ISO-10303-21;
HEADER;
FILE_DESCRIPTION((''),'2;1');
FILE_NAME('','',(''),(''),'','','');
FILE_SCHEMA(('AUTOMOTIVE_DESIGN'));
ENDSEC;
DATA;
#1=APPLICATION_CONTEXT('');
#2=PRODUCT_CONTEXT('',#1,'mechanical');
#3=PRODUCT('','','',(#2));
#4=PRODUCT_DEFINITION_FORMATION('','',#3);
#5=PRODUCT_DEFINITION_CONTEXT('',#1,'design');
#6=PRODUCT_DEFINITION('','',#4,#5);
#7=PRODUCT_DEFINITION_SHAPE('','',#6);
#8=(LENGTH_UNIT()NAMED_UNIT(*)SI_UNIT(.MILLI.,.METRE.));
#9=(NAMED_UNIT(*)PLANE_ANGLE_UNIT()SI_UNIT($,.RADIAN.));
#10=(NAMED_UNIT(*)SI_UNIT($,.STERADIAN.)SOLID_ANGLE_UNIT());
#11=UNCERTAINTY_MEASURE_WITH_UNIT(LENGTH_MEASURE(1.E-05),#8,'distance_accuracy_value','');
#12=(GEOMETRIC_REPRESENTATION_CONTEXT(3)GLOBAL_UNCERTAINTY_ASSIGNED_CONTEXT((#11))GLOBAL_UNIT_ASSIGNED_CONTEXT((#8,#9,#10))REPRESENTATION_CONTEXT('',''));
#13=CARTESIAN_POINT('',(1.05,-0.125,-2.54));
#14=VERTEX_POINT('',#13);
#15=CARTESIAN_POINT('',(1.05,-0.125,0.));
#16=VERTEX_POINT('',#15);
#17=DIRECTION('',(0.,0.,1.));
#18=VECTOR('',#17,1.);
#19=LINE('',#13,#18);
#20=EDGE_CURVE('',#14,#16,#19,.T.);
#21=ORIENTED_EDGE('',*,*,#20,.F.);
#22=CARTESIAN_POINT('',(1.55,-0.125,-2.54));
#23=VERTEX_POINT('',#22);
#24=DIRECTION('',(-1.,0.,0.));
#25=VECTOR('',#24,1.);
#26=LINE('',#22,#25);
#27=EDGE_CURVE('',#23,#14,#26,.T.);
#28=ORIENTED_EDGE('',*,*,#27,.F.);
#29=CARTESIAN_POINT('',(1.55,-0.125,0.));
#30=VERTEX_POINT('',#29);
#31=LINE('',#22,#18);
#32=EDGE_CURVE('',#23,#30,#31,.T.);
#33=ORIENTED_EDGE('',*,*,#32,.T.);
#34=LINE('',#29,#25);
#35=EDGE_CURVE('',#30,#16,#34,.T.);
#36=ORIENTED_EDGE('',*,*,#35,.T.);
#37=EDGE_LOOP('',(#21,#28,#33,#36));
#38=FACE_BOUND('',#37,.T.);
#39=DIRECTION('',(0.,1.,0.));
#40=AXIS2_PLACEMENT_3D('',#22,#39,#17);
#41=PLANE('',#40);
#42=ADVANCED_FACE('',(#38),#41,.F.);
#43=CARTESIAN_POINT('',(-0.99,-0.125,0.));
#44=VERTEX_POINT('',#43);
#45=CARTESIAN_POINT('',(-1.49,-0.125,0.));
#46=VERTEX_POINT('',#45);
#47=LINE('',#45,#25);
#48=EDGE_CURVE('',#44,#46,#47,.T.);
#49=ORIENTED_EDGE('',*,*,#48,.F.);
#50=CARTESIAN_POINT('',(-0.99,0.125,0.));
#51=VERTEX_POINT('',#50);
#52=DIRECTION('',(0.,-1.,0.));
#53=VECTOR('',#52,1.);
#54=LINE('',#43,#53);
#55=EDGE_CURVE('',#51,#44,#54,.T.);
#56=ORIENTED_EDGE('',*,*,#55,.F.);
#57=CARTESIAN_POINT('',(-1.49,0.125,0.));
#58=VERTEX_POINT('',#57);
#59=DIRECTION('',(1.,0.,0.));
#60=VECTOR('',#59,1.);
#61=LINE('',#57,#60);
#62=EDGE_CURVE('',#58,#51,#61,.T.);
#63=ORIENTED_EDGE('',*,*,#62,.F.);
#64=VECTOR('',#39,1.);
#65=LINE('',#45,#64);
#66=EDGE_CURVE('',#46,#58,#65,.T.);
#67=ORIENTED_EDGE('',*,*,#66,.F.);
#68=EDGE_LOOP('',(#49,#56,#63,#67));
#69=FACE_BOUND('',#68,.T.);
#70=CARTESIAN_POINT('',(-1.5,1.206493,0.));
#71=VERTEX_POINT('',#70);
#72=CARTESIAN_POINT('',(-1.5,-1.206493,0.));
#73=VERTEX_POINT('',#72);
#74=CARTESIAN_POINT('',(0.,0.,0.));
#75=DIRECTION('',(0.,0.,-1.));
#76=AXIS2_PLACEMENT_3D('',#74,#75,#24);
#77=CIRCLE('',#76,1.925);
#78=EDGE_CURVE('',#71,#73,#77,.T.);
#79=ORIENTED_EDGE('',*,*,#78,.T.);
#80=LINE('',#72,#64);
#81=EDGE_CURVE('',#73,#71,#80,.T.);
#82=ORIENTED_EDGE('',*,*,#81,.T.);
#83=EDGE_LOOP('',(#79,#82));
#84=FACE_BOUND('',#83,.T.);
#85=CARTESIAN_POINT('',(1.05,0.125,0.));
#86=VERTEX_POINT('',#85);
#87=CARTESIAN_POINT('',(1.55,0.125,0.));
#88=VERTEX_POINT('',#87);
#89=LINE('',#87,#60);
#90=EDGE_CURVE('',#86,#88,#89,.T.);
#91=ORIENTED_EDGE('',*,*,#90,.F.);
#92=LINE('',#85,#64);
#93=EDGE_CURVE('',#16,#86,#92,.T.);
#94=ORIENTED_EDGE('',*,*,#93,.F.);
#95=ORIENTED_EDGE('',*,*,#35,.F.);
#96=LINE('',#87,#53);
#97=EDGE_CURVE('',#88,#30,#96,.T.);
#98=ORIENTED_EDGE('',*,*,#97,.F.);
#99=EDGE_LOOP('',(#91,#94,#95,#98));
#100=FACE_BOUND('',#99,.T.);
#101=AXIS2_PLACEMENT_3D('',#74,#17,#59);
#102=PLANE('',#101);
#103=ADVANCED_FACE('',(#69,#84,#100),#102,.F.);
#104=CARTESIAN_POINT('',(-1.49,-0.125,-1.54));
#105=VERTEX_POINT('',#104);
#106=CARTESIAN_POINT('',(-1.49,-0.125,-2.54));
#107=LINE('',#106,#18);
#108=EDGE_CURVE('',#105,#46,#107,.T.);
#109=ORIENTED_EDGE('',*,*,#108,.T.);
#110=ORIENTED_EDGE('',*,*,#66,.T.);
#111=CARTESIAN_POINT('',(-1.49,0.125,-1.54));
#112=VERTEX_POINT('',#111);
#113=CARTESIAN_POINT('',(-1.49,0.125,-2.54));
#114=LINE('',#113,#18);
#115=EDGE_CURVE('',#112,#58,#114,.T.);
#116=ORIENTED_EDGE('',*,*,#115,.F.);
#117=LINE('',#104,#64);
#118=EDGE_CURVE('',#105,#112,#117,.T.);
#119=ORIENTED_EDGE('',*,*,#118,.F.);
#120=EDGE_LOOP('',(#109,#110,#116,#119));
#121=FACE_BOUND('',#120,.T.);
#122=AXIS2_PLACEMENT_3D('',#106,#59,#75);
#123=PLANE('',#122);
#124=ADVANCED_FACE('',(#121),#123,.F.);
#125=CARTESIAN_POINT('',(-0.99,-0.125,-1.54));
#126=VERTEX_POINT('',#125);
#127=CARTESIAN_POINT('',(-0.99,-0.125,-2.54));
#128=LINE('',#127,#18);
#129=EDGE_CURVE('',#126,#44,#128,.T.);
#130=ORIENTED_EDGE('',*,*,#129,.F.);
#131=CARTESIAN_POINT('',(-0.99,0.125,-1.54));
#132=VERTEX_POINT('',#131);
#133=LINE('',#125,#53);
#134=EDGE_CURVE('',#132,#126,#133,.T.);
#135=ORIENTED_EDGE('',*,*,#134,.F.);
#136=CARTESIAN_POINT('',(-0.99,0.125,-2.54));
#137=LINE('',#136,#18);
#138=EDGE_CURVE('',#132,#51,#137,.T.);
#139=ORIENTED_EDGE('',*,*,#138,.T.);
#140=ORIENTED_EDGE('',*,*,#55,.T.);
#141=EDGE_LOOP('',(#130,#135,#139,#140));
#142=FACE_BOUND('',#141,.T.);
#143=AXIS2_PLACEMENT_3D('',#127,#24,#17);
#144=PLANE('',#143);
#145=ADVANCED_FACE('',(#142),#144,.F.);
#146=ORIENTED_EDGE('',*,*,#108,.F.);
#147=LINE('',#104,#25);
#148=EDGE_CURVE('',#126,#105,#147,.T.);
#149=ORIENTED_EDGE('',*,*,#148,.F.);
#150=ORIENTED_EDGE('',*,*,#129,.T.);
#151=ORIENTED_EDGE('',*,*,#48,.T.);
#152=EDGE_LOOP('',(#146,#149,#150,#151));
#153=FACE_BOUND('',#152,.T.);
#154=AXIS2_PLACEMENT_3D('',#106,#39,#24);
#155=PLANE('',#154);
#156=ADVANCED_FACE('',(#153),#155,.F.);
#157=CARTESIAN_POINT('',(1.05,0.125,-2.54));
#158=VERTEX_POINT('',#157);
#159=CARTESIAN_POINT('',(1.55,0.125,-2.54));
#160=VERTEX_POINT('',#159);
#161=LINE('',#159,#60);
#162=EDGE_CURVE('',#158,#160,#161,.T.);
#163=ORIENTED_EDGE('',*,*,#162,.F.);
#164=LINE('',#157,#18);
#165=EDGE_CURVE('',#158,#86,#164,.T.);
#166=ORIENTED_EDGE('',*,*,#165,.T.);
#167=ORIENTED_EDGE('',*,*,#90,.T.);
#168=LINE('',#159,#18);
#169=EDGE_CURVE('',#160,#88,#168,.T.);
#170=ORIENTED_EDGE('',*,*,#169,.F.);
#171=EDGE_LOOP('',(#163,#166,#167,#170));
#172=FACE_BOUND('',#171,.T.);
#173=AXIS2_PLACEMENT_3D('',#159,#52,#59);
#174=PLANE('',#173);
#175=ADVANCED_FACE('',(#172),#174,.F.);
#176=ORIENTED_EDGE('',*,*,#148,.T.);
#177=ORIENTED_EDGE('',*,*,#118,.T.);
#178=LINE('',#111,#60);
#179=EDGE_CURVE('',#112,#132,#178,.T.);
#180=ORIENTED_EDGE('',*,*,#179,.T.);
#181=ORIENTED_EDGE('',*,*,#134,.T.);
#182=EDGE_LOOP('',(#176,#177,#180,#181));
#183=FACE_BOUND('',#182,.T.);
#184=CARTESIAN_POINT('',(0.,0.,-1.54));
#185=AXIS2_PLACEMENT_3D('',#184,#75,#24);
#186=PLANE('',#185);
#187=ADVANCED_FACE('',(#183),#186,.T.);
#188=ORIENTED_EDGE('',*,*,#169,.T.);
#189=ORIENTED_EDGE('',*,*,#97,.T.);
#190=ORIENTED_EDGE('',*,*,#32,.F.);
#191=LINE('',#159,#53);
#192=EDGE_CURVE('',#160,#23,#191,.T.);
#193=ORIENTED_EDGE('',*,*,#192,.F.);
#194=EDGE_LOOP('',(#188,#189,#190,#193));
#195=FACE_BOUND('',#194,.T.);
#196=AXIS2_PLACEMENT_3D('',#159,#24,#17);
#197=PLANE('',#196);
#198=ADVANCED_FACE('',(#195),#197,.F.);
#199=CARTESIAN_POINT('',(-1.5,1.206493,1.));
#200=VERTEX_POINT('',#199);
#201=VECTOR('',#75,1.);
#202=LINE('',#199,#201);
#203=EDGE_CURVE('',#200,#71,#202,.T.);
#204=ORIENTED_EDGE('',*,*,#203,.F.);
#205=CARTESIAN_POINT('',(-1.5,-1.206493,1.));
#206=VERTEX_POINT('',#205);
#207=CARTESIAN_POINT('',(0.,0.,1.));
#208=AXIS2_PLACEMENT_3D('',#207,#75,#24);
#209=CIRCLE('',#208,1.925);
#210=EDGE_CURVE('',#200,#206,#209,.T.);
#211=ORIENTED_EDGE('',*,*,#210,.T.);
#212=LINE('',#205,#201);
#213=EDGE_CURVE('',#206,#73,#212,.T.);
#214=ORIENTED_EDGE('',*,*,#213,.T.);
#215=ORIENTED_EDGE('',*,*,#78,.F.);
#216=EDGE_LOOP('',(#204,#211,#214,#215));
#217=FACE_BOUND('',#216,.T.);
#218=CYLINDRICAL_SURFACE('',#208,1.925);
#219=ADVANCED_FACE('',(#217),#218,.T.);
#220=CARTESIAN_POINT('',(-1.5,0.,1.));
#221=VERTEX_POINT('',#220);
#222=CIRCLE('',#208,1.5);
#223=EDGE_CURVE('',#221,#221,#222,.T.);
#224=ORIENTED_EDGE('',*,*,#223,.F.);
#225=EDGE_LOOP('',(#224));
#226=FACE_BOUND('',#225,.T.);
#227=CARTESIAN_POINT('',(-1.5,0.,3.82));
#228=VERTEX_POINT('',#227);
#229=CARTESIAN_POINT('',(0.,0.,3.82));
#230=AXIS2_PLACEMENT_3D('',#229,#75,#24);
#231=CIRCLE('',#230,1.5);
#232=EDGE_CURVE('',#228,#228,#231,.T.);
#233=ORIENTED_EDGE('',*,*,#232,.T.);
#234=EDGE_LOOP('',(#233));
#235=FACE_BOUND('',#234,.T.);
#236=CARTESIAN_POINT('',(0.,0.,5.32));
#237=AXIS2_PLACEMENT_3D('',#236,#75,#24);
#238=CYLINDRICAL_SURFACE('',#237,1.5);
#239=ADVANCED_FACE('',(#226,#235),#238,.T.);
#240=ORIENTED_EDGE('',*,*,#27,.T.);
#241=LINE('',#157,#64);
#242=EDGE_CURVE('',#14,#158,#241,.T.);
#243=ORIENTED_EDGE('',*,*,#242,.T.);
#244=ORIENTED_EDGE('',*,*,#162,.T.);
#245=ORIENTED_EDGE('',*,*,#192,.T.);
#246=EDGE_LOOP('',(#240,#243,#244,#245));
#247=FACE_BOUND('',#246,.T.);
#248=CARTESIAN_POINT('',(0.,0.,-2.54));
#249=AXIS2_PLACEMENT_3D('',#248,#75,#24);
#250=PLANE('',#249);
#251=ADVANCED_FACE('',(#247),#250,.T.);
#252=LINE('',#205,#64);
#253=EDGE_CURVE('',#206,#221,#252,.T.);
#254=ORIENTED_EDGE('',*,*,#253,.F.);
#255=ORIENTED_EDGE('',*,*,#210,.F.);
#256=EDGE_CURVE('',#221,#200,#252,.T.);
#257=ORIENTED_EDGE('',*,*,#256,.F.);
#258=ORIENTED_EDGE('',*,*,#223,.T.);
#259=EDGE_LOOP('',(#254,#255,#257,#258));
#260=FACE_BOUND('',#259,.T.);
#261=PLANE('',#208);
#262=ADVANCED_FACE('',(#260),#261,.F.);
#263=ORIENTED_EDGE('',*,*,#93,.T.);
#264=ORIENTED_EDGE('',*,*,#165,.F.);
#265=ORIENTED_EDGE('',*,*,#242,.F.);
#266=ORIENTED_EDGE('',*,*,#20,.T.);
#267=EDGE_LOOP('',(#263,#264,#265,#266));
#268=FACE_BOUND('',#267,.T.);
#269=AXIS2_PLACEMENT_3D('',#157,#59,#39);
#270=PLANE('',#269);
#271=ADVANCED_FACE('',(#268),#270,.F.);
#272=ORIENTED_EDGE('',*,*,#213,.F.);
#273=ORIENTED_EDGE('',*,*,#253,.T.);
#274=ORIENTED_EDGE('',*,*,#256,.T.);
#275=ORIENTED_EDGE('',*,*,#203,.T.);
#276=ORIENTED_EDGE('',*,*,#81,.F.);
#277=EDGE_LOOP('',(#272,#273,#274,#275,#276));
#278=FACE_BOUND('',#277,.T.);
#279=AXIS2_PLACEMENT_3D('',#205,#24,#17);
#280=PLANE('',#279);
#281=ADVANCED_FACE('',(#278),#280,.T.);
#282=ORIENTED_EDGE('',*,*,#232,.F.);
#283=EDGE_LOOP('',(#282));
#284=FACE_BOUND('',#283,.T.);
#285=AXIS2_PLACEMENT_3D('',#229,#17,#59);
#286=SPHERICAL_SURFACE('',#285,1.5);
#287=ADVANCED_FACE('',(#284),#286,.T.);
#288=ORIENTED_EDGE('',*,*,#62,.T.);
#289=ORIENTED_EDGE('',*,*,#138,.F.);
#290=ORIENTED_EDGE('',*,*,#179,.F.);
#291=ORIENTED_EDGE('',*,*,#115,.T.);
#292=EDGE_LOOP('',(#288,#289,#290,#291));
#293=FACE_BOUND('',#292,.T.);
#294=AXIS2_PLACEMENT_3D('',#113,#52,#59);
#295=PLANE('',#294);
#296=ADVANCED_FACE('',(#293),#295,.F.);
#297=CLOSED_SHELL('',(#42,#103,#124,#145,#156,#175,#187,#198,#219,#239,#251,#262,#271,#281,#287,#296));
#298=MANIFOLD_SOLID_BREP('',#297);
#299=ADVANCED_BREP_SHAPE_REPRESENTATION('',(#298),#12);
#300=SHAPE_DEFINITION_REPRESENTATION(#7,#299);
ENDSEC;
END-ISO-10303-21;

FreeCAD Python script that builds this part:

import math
import FreeCAD as App
import Part
import Sketcher
Q = App.Units.Quantity


def edges_at(feature, points):
    """Names of the edges that pass closest to the given points."""
    edges = feature.Shape.Edges
    near = lambda p: min(range(len(edges)), key=lambda i: edges[i].distToShape(Part.Vertex(*p))[0])
    return sorted({f"Edge{near(p) + 1}" for p in points})


def add_polygon(sketch, points):
    """Adds a closed chain of lines whose ends are joined by coincident constraints."""
    first, n = sketch.GeometryCount, len(points)
    for a, b in zip(points, points[1:] + points[:1]):
        sketch.addGeometry(Part.LineSegment(App.Vector(*a, 0), App.Vector(*b, 0)), False)
    for i in range(n):
        sketch.addConstraint(Sketcher.Constraint("Coincident", first + i, 2, first + (i + 1) % n, 1))

doc = App.newDocument("Part")
params = doc.addObject("Spreadsheet::Sheet", "Params")
for row, (alias, value) in enumerate([
    ("sketch1_diameter", "3 mm"),
    ("pad1_length", "5.32 mm"),
    ("fillet_radius", "1.5 mm"),
    ("pad2_length", "1 mm"),
    ("sketch3_width", "0.5 mm"),
    ("sketch3_height", "0.25 mm"),
    ("pad3_length", "2.54 mm"),
    ("pocket1_length", "1 mm"),
], start=1):
    params.set(f"A{row}", alias)
    params.set(f"B{row}", "=" + value)
    params.setAlias(f"B{row}", alias)

body = doc.addObject("PartDesign::Body", "Body")

sketch1 = body.newObject("Sketcher::SketchObject", "Sketch")
sketch1.AttachmentSupport = (doc.getObject("XY_Plane"), [""])
sketch1.MapMode = "FlatFace"
sketch1.addGeometry(Part.Circle(App.Vector(0, 0, 0), App.Vector(0, 0, 1), 1.5), False)
sketch1.addConstraint(Sketcher.Constraint("Coincident", 0, 3, -1, 1))
sketch1.addConstraint(Sketcher.Constraint("Diameter", 0, Q("3 mm")))
sketch1.setExpression("Constraints[1]", "Params.sketch1_diameter")
pad1 = body.newObject("PartDesign::Pad", "Pad")
pad1.Profile = sketch1
pad1.setExpression("Length", "Params.pad1_length")
doc.recompute()

fillet = body.newObject("PartDesign::Fillet", "Fillet")
fillet.Base = (pad1, edges_at(pad1, [(-1.5, 0, 5.32)]))
fillet.setExpression("Radius", "Params.fillet_radius")

sketch2 = body.newObject("Sketcher::SketchObject", "Sketch001")
sketch2.AttachmentSupport = (doc.getObject("XY_Plane"), [""])
sketch2.MapMode = "FlatFace"
sketch2.addGeometry(Part.LineSegment(App.Vector(-1.5, -1.2, 0), App.Vector(-1.5, 1.2, 0)), False)
sketch2.addGeometry(Part.ArcOfCircle(Part.Circle(App.Vector(0, 0, 0), App.Vector(0, 0, 1), 1.9), math.radians(-141), math.radians(141)), False)
sketch2.addConstraint(Sketcher.Constraint("Coincident", 0, 1, 1, 1))
sketch2.addConstraint(Sketcher.Constraint("Coincident", 1, 2, 0, 2))
sketch2.addConstraint(Sketcher.Constraint("Vertical", 0))
sketch2.addConstraint(Sketcher.Constraint("Coincident", 1, 3, -1, 1))
sketch2.addConstraint(Sketcher.Constraint("Radius", 1, Q("1.925 mm")))
sketch2.addConstraint(Sketcher.Constraint("DistanceX", 0, 1, -1, 1, Q("1.5 mm")))
pad2 = body.newObject("PartDesign::Pad", "Pad001")
pad2.Profile = sketch2
pad2.setExpression("Length", "Params.pad2_length")

sketch3 = body.newObject("Sketcher::SketchObject", "Sketch002")
sketch3.AttachmentSupport = (doc.getObject("XY_Plane"), [""])
sketch3.MapMode = "FlatFace"
add_polygon(sketch3, [(1.55, 0.12), (1.55, -0.12), (1.05, -0.12), (1.05, 0.12)])
add_polygon(sketch3, [(-0.99, 0.12), (-0.99, -0.12), (-1.49, -0.12), (-1.49, 0.12)])
sketch3.addConstraint(Sketcher.Constraint("Vertical", 0))
sketch3.addConstraint(Sketcher.Constraint("Horizontal", 1))
sketch3.addConstraint(Sketcher.Constraint("Vertical", 2))
sketch3.addConstraint(Sketcher.Constraint("Horizontal", 3))
sketch3.addConstraint(Sketcher.Constraint("Vertical", 4))
sketch3.addConstraint(Sketcher.Constraint("Horizontal", 5))
sketch3.addConstraint(Sketcher.Constraint("Vertical", 6))
sketch3.addConstraint(Sketcher.Constraint("Horizontal", 7))
sketch3.addConstraint(Sketcher.Constraint("Horizontal", 1, 2, 4, 2))
sketch3.addConstraint(Sketcher.Constraint("Horizontal", 3, 2, 6, 2))
sketch3.addConstraint(Sketcher.Constraint("Equal", 3, 5))
sketch3.addConstraint(Sketcher.Constraint("DistanceX", 1, 2, 1, 1, Q("0.5 mm")))
sketch3.addConstraint(Sketcher.Constraint("DistanceY", 0, 2, 0, 1, Q("0.25 mm")))
sketch3.addConstraint(Sketcher.Constraint("DistanceX", -1, 1, 0, 2, Q("1.55 mm")))
sketch3.addConstraint(Sketcher.Constraint("DistanceX", 4, 2, -1, 1, Q("0.99 mm")))
sketch3.addConstraint(Sketcher.Constraint("DistanceY", 0, 2, -1, 1, Q("0.125 mm")))
sketch3.setExpression("Constraints[19]", "Params.sketch3_width")
sketch3.setExpression("Constraints[20]", "Params.sketch3_height")
pad3 = body.newObject("PartDesign::Pad", "Pad002")
pad3.Profile = sketch3
pad3.setExpression("Length", "Params.pad3_length")
pad3.Reversed = True

sketch4 = body.newObject("Sketcher::SketchObject", "Sketch003")
sketch4.AttachmentSupport = (doc.getObject("XY_Plane"), [""])
sketch4.MapMode = "FlatFace"
sketch4.AttachmentOffset = App.Placement(App.Vector(0, 0, -2.54), App.Rotation())
add_polygon(sketch4, [(-0.76, 0.26), (-0.76, -0.23), (-1.7, -0.23), (-1.7, 0.26)])
sketch4.addConstraint(Sketcher.Constraint("Vertical", 0))
sketch4.addConstraint(Sketcher.Constraint("Horizontal", 1))
sketch4.addConstraint(Sketcher.Constraint("Vertical", 2))
sketch4.addConstraint(Sketcher.Constraint("Horizontal", 3))
sketch4.addConstraint(Sketcher.Constraint("DistanceX", 1, 2, 1, 1, Q("0.93594 mm")))
sketch4.addConstraint(Sketcher.Constraint("DistanceY", 0, 2, 0, 1, Q("0.492175 mm")))
sketch4.addConstraint(Sketcher.Constraint("DistanceY", -1, 1, 2, 2, Q("0.25819 mm")))
sketch4.addConstraint(Sketcher.Constraint("DistanceX", 0, 2, -1, 1, Q("0.763782 mm")))
pocket1 = body.newObject("PartDesign::Pocket", "Pocket")
pocket1.Profile = sketch4
pocket1.setExpression("Length", "Params.pocket1_length")
pocket1.Reversed = True

doc.recompute()
